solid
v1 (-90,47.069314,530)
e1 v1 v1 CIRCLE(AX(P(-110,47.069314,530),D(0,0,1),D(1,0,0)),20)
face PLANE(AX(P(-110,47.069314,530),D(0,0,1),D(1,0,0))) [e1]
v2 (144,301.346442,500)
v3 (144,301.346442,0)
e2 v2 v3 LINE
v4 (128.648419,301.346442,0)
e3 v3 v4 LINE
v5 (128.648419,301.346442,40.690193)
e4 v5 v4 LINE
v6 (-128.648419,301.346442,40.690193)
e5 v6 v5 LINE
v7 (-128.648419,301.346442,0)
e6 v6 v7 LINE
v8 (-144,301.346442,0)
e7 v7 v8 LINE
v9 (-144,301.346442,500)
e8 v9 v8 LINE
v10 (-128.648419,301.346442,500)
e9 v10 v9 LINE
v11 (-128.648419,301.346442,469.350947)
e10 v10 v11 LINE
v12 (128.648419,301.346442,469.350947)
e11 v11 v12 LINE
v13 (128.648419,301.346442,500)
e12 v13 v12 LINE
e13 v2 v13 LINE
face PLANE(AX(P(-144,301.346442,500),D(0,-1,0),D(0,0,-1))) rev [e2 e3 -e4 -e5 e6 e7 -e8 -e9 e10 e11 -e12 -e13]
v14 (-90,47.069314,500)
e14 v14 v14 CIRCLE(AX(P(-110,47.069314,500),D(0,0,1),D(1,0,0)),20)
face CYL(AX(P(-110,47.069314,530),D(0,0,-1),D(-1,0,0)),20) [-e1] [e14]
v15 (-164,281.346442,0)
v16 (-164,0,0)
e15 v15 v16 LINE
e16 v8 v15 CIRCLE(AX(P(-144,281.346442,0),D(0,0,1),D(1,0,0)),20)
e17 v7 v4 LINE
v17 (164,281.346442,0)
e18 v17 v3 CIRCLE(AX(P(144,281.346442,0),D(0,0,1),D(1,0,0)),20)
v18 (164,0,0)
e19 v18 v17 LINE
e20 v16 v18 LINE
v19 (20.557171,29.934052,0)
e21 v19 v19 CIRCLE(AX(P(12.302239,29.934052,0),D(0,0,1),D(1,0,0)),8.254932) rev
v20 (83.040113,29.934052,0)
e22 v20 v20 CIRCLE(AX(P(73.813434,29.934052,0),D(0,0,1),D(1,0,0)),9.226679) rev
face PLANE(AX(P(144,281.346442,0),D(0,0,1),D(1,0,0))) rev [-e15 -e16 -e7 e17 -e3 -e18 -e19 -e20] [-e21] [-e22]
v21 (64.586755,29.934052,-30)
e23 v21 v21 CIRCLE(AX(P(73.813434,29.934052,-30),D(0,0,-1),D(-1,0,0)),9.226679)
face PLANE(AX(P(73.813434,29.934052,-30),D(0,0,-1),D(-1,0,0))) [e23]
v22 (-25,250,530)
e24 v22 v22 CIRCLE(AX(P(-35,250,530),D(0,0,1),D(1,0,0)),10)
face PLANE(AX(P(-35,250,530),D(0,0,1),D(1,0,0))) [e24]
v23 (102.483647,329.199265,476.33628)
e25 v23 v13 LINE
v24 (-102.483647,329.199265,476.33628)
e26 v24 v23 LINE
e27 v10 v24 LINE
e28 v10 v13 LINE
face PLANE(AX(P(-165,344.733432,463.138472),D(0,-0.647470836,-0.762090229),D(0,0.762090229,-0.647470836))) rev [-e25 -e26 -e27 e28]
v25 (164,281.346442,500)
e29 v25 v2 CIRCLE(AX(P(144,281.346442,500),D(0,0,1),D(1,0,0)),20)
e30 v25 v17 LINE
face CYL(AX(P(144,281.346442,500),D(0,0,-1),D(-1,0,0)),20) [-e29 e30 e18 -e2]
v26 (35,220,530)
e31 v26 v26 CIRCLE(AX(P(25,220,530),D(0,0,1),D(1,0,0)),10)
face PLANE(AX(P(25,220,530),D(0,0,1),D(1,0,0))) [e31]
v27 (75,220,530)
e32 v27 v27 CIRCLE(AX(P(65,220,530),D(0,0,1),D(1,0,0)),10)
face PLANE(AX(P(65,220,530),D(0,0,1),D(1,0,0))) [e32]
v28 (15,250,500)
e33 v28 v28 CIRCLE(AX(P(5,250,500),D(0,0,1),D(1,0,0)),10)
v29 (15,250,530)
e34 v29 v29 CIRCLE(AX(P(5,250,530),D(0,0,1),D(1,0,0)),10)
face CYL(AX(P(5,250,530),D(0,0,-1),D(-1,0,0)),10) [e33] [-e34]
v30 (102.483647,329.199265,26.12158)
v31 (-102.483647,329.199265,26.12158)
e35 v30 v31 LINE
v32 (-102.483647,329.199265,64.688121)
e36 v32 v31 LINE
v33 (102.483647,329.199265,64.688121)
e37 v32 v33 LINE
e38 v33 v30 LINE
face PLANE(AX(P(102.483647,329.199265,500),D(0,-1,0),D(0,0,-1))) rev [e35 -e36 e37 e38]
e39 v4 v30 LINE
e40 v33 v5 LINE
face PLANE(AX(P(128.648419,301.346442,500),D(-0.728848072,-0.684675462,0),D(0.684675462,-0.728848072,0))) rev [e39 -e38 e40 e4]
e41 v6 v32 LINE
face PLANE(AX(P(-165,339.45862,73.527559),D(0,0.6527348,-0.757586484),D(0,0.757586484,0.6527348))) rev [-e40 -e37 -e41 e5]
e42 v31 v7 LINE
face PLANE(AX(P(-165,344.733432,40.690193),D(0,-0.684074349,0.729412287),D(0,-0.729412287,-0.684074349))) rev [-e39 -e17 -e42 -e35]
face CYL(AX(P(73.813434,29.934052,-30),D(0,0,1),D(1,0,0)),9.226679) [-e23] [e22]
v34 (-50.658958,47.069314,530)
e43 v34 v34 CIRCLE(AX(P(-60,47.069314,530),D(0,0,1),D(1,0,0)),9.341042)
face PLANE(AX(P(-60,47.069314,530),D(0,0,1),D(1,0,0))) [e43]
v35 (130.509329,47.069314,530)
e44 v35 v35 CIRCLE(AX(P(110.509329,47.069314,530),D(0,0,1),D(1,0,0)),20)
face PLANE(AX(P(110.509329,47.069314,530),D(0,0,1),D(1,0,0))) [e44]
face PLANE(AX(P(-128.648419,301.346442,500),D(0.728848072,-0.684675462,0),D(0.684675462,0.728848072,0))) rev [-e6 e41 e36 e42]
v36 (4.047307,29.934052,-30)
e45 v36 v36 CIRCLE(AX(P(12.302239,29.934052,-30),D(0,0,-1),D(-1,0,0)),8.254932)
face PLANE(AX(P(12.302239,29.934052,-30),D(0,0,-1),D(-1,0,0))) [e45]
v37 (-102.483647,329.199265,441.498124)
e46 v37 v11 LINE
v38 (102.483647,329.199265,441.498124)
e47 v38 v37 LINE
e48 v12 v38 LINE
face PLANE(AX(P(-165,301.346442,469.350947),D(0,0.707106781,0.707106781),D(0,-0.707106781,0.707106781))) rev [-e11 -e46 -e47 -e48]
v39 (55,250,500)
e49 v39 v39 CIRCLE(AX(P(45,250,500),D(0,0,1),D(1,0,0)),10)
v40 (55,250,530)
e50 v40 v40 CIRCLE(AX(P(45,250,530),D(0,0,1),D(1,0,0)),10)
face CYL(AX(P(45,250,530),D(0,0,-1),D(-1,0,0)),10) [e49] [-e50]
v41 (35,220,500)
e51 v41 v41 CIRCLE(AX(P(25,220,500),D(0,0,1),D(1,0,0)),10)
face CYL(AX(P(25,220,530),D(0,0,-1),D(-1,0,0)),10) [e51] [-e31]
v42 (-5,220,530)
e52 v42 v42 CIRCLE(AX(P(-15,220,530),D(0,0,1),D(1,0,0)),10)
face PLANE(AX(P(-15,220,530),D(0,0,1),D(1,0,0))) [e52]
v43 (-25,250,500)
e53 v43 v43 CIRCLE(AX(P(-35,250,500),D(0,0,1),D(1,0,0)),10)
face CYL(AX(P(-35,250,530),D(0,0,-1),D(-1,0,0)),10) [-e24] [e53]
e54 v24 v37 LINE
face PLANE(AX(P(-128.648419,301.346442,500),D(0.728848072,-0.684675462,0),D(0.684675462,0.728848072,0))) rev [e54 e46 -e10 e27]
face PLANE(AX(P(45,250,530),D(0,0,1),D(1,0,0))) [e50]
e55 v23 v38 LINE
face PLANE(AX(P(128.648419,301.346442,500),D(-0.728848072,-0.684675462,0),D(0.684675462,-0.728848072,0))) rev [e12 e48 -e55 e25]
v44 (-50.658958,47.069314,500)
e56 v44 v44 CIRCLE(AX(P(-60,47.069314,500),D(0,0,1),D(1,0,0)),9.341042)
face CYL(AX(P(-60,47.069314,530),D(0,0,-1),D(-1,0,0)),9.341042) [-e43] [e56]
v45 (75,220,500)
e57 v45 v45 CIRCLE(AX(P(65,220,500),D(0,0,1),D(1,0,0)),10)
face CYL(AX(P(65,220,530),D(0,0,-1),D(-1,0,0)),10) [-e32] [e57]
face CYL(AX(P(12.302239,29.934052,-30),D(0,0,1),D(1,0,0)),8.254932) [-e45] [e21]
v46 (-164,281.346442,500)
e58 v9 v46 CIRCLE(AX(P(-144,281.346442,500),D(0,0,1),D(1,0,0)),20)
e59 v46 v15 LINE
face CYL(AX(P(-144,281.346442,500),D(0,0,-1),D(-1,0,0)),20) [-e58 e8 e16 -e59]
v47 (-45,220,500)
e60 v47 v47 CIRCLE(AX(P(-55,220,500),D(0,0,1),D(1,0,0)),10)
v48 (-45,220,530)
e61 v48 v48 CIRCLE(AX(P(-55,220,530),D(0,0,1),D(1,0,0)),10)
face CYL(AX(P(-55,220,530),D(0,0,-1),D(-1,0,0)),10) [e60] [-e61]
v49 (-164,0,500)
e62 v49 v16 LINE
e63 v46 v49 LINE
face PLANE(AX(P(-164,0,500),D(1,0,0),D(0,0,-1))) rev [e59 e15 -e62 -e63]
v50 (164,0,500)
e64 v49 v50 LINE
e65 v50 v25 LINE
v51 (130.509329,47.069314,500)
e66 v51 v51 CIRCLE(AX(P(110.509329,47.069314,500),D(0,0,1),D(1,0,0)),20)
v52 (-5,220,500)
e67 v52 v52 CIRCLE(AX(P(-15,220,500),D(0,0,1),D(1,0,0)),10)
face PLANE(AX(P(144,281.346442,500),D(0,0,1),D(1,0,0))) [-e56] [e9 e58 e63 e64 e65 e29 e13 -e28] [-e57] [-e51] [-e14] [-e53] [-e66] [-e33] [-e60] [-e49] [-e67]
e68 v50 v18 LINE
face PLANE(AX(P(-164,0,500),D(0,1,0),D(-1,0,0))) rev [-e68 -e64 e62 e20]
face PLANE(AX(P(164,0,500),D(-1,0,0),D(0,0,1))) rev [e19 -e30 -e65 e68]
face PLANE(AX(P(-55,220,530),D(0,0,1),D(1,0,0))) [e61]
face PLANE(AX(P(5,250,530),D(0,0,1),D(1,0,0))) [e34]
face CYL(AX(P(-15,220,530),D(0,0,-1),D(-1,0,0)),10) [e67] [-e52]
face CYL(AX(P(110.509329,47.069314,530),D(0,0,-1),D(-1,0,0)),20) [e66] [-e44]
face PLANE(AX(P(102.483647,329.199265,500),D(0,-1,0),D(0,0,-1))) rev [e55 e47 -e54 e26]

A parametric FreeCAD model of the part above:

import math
import FreeCAD as App
import Part
import Sketcher
Q = App.Units.Quantity

doc = App.newDocument("Part")
body = doc.addObject("PartDesign::Body", "Body")

sketch1 = body.newObject("Sketcher::SketchObject", "Sketch")
sketch1.AttachmentSupport = (doc.getObject("XY_Plane"), [""])
sketch1.MapMode = "FlatFace"
sketch1.addGeometry([
    Part.LineSegment(App.Vector(-164, 0, 0), App.Vector(164, 0, 0)),
    Part.LineSegment(App.Vector(164, 0, 0), App.Vector(164, 281, 0)),
    Part.ArcOfCircle(Part.Circle(App.Vector(144, 281, 0), App.Vector(0, 0, 1), 20), math.radians(0), math.radians(90)),
    Part.LineSegment(App.Vector(144, 301, 0), App.Vector(129, 301, 0)),
    Part.LineSegment(App.Vector(129, 301, 0), App.Vector(102, 329, 0)),
    Part.LineSegment(App.Vector(102, 329, 0), App.Vector(-102, 329, 0)),
    Part.LineSegment(App.Vector(-102, 329, 0), App.Vector(-129, 301, 0)),
    Part.LineSegment(App.Vector(-129, 301, 0), App.Vector(-144, 301, 0)),
    Part.ArcOfCircle(Part.Circle(App.Vector(-144, 281, 0), App.Vector(0, 0, 1), 20), math.radians(90), math.radians(180)),
    Part.LineSegment(App.Vector(-164, 281, 0), App.Vector(-164, 0, 0)),
], False)
sketch1.addConstraint([
    Sketcher.Constraint("Coincident", 0, 2, 1, 1),
    Sketcher.Constraint("Tangent", 1, 2, 2, 1),
    Sketcher.Constraint("Tangent", 2, 2, 3, 1),
    Sketcher.Constraint("Coincident", 3, 2, 4, 1),
    Sketcher.Constraint("Coincident", 4, 2, 5, 1),
    Sketcher.Constraint("Coincident", 5, 2, 6, 1),
    Sketcher.Constraint("Coincident", 6, 2, 7, 1),
    Sketcher.Constraint("Tangent", 7, 2, 8, 1),
    Sketcher.Constraint("Tangent", 8, 2, 9, 1),
    Sketcher.Constraint("Coincident", 9, 2, 0, 1),
    Sketcher.Constraint("Horizontal", 0),
    Sketcher.Constraint("Vertical", 1),
    Sketcher.Constraint("Horizontal", 3),
    Sketcher.Constraint("Horizontal", 5),
    Sketcher.Constraint("Horizontal", 7),
    Sketcher.Constraint("Vertical", 9),
    Sketcher.Constraint("Equal", 2, 8),
    Sketcher.Constraint("Symmetric", 0, 2, 9, 2, -1, 1),
    Sketcher.Constraint("Symmetric", 3, 2, 6, 2, -2),
    Sketcher.Constraint("Equal", 4, 6),
    Sketcher.Constraint("Radius", 2, Q("20 mm")),
    Sketcher.Constraint("DistanceX", 0, 1, 0, 2, Q("328 mm")),
    Sketcher.Constraint("DistanceX", 3, 2, 3, 1, Q("15.351581 mm")),
    Sketcher.Constraint("DistanceX", 5, 2, 5, 1, Q("204.967293 mm")),
    Sketcher.Constraint("DistanceY", 1, 1, 1, 2, Q("281.346442 mm")),
    Sketcher.Constraint("Distance", 4, Q("38.214853 mm")),
])
pad1 = body.newObject("PartDesign::Pad", "Pad")
pad1.Profile = sketch1
pad1.Length = 500

sketch2 = body.newObject("Sketcher::SketchObject", "Sketch001")
sketch2.AttachmentSupport = (doc.getObject("YZ_Plane"), [""])
sketch2.MapMode = "FlatFace"
sketch2.addGeometry([
    Part.LineSegment(App.Vector(301, 500, 0), App.Vector(345, 463, 0)),
    Part.LineSegment(App.Vector(345, 463, 0), App.Vector(339, 431, 0)),
    Part.LineSegment(App.Vector(339, 431, 0), App.Vector(301, 469, 0)),
    Part.LineSegment(App.Vector(301, 469, 0), App.Vector(301, 41, 0)),
    Part.LineSegment(App.Vector(301, 41, 0), App.Vector(339, 74, 0)),
    Part.LineSegment(App.Vector(339, 74, 0), App.Vector(345, 41, 0)),
    Part.LineSegment(App.Vector(345, 41, 0), App.Vector(301, 0, 0)),
    Part.LineSegment(App.Vector(301, 0, 0), App.Vector(363, 0, 0)),
    Part.LineSegment(App.Vector(363, 0, 0), App.Vector(363, 515, 0)),
    Part.LineSegment(App.Vector(363, 515, 0), App.Vector(301, 515, 0)),
    Part.LineSegment(App.Vector(301, 515, 0), App.Vector(301, 500, 0)),
], False)
sketch2.addConstraint([
    Sketcher.Constraint("Coincident", 0, 2, 1, 1),
    Sketcher.Constraint("Coincident", 1, 2, 2, 1),
    Sketcher.Constraint("Coincident", 2, 2, 3, 1),
    Sketcher.Constraint("Coincident", 3, 2, 4, 1),
    Sketcher.Constraint("Coincident", 4, 2, 5, 1),
    Sketcher.Constraint("Coincident", 5, 2, 6, 1),
    Sketcher.Constraint("Coincident", 6, 2, 7, 1),
    Sketcher.Constraint("Coincident", 7, 2, 8, 1),
    Sketcher.Constraint("Coincident", 8, 2, 9, 1),
    Sketcher.Constraint("Coincident", 9, 2, 10, 1),
    Sketcher.Constraint("Coincident", 10, 2, 0, 1),
    Sketcher.Constraint("Vertical", 3),
    Sketcher.Constraint("Horizontal", 7),
    Sketcher.Constraint("Vertical", 8),
    Sketcher.Constraint("Horizontal", 9),
    Sketcher.Constraint("Vertical", 10),
    Sketcher.Constraint("PointOnObject", 6, 2, -1),
    Sketcher.Constraint("Horizontal", 3, 2, 5, 2),
    Sketcher.Constraint("Vertical", 1, 2, 4, 2),
    Sketcher.Constraint("Vertical", 0, 2, 5, 2),
    Sketcher.Constraint("Vertical", 3, 2, 6, 2),
    Sketcher.Constraint("Vertical", 6, 2, 9, 2),
    Sketcher.Constraint("Angle", 2, Q("135 deg")),
    Sketcher.Constraint("DistanceY", -1, 1, 10, 2, Q("500 mm")),
    Sketcher.Constraint("Distance", 2, Q("53.898759 mm")),
    Sketcher.Constraint("Distance", 6, Q("59.482121 mm")),
    Sketcher.Constraint("DistanceX", 7, 1, 7, 2, Q("62.024414 mm")),
    Sketcher.Constraint("DistanceY", 3, 2, 3, 1, Q("428.660754 mm")),
    Sketcher.Constraint("DistanceY", 8, 1, 8, 2, Q("514.613262 mm")),
    Sketcher.Constraint("DistanceX", -1, 1, 0, 2, Q("344.733432 mm")),
    Sketcher.Constraint("DistanceY", -1, 1, 0, 2, Q("463.138472 mm")),
    Sketcher.Constraint("DistanceX", -1, 1, 1, 2, Q("339.45862 mm")),
    Sketcher.Constraint("DistanceY", -1, 1, 4, 2, Q("73.527559 mm")),
])
pocket1 = body.newObject("PartDesign::Pocket", "Pocket")
pocket1.Profile = sketch2
pocket1.Length = 330
pocket1.Midplane = True

sketch3 = body.newObject("Sketcher::SketchObject", "Sketch002")
sketch3.AttachmentSupport = (doc.getObject("XY_Plane"), [""])
sketch3.MapMode = "FlatFace"
sketch3.AttachmentOffset = App.Placement(App.Vector(0, 0, 500), App.Rotation())
sketch3.addGeometry([
    Part.Circle(App.Vector(-110, 47, 0), App.Vector(0, 0, 1), 20),
    Part.Circle(App.Vector(-60, 47, 0), App.Vector(0, 0, 1), 9),
    Part.Circle(App.Vector(111, 47, 0), App.Vector(0, 0, 1), 20),
    Part.Circle(App.Vector(-35, 250, 0), App.Vector(0, 0, 1), 10),
    Part.Circle(App.Vector(-55, 220, 0), App.Vector(0, 0, 1), 10),
    Part.Circle(App.Vector(-15, 220, 0), App.Vector(0, 0, 1), 10),
    Part.Circle(App.Vector(25, 220, 0), App.Vector(0, 0, 1), 10),
    Part.Circle(App.Vector(65, 220, 0), App.Vector(0, 0, 1), 10),
    Part.Circle(App.Vector(5, 250, 0), App.Vector(0, 0, 1), 10),
    Part.Circle(App.Vector(45, 250, 0), App.Vector(0, 0, 1), 10),
], False)
sketch3.addConstraint([
    Sketcher.Constraint("Equal", 0, 2),
    Sketcher.Constraint("Equal", 3, 4),
    Sketcher.Constraint("Equal", 4, 5),
    Sketcher.Constraint("Equal", 5, 6),
    Sketcher.Constraint("Equal", 6, 7),
    Sketcher.Constraint("Equal", 7, 8),
    Sketcher.Constraint("Equal", 8, 9),
    Sketcher.Constraint("Horizontal", 0, 3, 1, 3),
    Sketcher.Constraint("Horizontal", 1, 3, 2, 3),
    Sketcher.Constraint("Horizontal", 4, 3, 5, 3),
    Sketcher.Constraint("Horizontal", 5, 3, 6, 3),
    Sketcher.Constraint("Horizontal", 6, 3, 7, 3),
    Sketcher.Constraint("Horizontal", 3, 3, 8, 3),
    Sketcher.Constraint("Horizontal", 8, 3, 9, 3),
    Sketcher.Constraint("Diameter", 0, Q("40 mm")),
    Sketcher.Constraint("Diameter", 3, Q("20 mm")),
    Sketcher.Constraint("DistanceX", 0, 3, -1, 1, Q("110 mm")),
    Sketcher.Constraint("DistanceX", 1, 3, -1, 1, Q("60 mm")),
    Sketcher.Constraint("DistanceX", 3, 3, -1, 1, Q("35 mm")),
    Sketcher.Constraint("DistanceY", -1, 1, 3, 3, Q("250 mm")),
    Sketcher.Constraint("DistanceX", 4, 3, -1, 1, Q("55 mm")),
    Sketcher.Constraint("DistanceY", -1, 1, 4, 3, Q("220 mm")),
    Sketcher.Constraint("DistanceX", 5, 3, -1, 1, Q("15 mm")),
    Sketcher.Constraint("DistanceX", -1, 1, 6, 3, Q("25 mm")),
    Sketcher.Constraint("DistanceX", -1, 1, 7, 3, Q("65 mm")),
    Sketcher.Constraint("DistanceX", -1, 1, 8, 3, Q("5 mm")),
    Sketcher.Constraint("DistanceX", -1, 1, 9, 3, Q("45 mm")),
    Sketcher.Constraint("Diameter", 1, Q("18.682085 mm")),
    Sketcher.Constraint("DistanceX", -1, 1, 2, 3, Q("110.509329 mm")),
    Sketcher.Constraint("DistanceY", -1, 1, 0, 3, Q("47.069314 mm")),
])
pad2 = body.newObject("PartDesign::Pad", "Pad001")
pad2.Profile = sketch3
pad2.Length = 30

sketch4 = body.newObject("Sketcher::SketchObject", "Sketch003")
sketch4.AttachmentSupport = (doc.getObject("XY_Plane"), [""])
sketch4.MapMode = "FlatFace"
sketch4.addGeometry([
    Part.Circle(App.Vector(12, 30, 0), App.Vector(0, 0, 1), 8),
    Part.Circle(App.Vector(74, 30, 0), App.Vector(0, 0, 1), 9),
], False)
sketch4.addConstraint([
    Sketcher.Constraint("Horizontal", 0, 3, 1, 3),
    Sketcher.Constraint("Diameter", 1, Q("18.453358 mm")),
    Sketcher.Constraint("Diameter", 0, Q("16.509863 mm")),
    Sketcher.Constraint("DistanceX", -1, 1, 0, 3, Q("12.302239 mm")),
    Sketcher.Constraint("DistanceY", -1, 1, 0, 3, Q("29.934052 mm")),
    Sketcher.Constraint("DistanceX", -1, 1, 1, 3, Q("73.813434 mm")),
])
pad3 = body.newObject("PartDesign::Pad", "Pad002")
pad3.Profile = sketch4
pad3.Length = 30
pad3.Reversed = True

doc.recompute()
